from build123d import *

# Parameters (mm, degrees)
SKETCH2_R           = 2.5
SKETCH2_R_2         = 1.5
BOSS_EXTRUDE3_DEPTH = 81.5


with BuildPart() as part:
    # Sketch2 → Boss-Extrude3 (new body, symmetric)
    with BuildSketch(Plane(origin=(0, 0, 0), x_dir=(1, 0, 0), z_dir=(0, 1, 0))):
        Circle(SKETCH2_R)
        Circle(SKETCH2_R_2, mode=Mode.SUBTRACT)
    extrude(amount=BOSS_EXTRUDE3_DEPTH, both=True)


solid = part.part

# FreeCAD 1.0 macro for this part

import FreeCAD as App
import Part
import Sketcher
Q = App.Units.Quantity

doc = App.newDocument("Part")
params = doc.addObject("Spreadsheet::Sheet", "Params")
for row, (alias, value) in enumerate([
    ("sketch1_diameter", "5 mm"),
    ("sketch1_diameter2", "3 mm"),
    ("pad1_length", "163 mm"),
], start=1):
    params.set(f"A{row}", alias)
    params.set(f"B{row}", "=" + value)
    params.setAlias(f"B{row}", alias)

body = doc.addObject("PartDesign::Body", "Body")

# Sketch on XZ plane
sketch1 = doc.addObject("Sketcher::SketchObject", "Sketch")
body.addObject(sketch1)
sketch1.AttachmentSupport = (doc.XZ_Plane, [""])
sketch1.MapMode = "FlatFace"
sketch1.addGeometry(Part.Circle(App.Vector(0, 0, 0), App.Vector(0, 0, 1), 2.5), False)
sketch1.addGeometry(Part.Circle(App.Vector(0, 0, 0), App.Vector(0, 0, 1), 1.5), False)
sketch1.addConstraint(Sketcher.Constraint("Coincident", 0, 3, -1, 1))
sketch1.addConstraint(Sketcher.Constraint("Coincident", 1, 3, -1, 1))
sketch1.addConstraint(Sketcher.Constraint("Diameter", 0, Q("5 mm")))
sketch1.addConstraint(Sketcher.Constraint("Diameter", 1, Q("3 mm")))
sketch1.setExpression("Constraints[2]", "Params.sketch1_diameter")
sketch1.setExpression("Constraints[3]", "Params.sketch1_diameter2")
pad1 = doc.addObject("PartDesign::Pad", "Pad")
body.addObject(pad1)
pad1.Profile = sketch1
pad1.setExpression("Length", "Params.pad1_length")
pad1.Midplane = True

doc.recompute()
